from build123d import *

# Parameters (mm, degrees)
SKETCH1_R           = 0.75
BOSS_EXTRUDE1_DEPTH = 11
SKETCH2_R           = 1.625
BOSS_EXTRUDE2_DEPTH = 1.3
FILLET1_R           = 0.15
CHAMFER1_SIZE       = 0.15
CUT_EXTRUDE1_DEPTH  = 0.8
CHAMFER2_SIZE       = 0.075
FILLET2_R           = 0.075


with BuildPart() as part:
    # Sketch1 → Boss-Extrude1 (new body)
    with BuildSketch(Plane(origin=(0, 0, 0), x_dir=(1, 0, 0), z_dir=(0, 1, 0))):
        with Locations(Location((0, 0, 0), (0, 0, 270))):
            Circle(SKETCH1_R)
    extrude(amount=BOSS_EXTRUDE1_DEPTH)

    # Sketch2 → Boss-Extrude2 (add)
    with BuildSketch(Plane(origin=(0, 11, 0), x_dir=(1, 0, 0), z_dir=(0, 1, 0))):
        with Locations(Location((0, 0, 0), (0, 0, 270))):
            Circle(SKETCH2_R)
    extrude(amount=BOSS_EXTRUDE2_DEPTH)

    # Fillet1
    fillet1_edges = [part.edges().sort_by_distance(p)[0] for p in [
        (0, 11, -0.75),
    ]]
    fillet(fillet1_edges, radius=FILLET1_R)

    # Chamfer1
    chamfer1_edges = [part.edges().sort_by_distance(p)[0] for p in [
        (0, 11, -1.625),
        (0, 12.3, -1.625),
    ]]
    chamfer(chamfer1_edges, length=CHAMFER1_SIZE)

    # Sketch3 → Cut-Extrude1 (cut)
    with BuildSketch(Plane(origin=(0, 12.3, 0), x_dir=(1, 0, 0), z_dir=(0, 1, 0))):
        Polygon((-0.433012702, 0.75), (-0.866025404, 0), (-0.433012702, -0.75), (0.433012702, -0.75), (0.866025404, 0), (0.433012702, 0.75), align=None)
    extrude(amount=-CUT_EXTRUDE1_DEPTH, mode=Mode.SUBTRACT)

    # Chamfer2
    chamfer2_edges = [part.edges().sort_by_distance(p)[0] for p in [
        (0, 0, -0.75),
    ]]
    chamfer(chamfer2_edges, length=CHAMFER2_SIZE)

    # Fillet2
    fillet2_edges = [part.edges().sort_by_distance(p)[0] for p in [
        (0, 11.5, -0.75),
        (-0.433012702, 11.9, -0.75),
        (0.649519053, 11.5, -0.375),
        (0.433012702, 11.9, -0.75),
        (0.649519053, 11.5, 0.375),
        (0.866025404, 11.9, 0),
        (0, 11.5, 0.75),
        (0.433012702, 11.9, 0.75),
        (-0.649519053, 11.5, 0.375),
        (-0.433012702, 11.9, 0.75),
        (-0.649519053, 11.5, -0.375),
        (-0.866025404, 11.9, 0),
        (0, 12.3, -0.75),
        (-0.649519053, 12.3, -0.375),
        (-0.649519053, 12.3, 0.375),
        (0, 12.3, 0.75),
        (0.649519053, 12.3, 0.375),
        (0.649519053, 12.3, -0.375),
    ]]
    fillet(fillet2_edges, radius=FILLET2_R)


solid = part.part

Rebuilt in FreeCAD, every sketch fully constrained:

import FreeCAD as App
import Part
import Sketcher
from FreeCAD import Vector
Q = App.Units.Quantity


def edges_at(feature, points):
    """Names of the edges that pass closest to the given points."""
    edges = feature.Shape.Edges
    near = lambda p: min(range(len(edges)), key=lambda i: edges[i].distToShape(Part.Vertex(*p))[0])
    return sorted({f"Edge{near(p) + 1}" for p in points})


def add_polygon(sketch, points):
    """Adds a closed chain of lines whose ends are joined by coincident constraints."""
    first, n = sketch.GeometryCount, len(points)
    for a, b in zip(points, points[1:] + points[:1]):
        sketch.addGeometry(Part.LineSegment(App.Vector(*a, 0), App.Vector(*b, 0)), False)
    for i in range(n):
        sketch.addConstraint(Sketcher.Constraint("Coincident", first + i, 2, first + (i + 1) % n, 1))

doc = App.newDocument("Part")
body = doc.addObject("PartDesign::Body", "Body")

# Sketch on XZ plane
sketch1 = body.newObject("Sketcher::SketchObject", "Sketch")
sketch1.AttachmentSupport = (doc.getObject("XZ_Plane"), [""])
sketch1.MapMode = "FlatFace"
sketch1.addGeometry(Part.Circle(Vector(0, 0, 0), Vector(0, 0, 1), 0.75), False)
sketch1.addConstraint([
    Sketcher.Constraint("Coincident", 0, 3, -1, 1),
    Sketcher.Constraint("Diameter", 0, 1.5),
])
pad1 = body.newObject("PartDesign::Pad", "Pad")
pad1.Profile = sketch1
pad1.Length = 11
pad1.Reversed = True

# Sketch on XZ plane
sketch2 = body.newObject("Sketcher::SketchObject", "Sketch001")
sketch2.AttachmentSupport = (doc.getObject("XZ_Plane"), [""])
sketch2.MapMode = "FlatFace"
sketch2.AttachmentOffset = App.Placement(Vector(0, 0, -11), App.Rotation())
sketch2.addGeometry(Part.Circle(Vector(0, 0, 0), Vector(0, 0, 1), 1.625), False)
sketch2.addConstraint([
    Sketcher.Constraint("Coincident", 0, 3, -1, 1),
    Sketcher.Constraint("Diameter", 0, 3.25),
])
pad2 = body.newObject("PartDesign::Pad", "Pad001")
pad2.Profile = sketch2
pad2.Length = 1.3
pad2.Reversed = True
doc.recompute()

fillet = body.newObject("PartDesign::Fillet", "Fillet")
fillet.Base = (pad2, edges_at(pad2, [(0, 11, -0.75)]))
fillet.Radius = 0.15
doc.recompute()

chamfer = body.newObject("PartDesign::Chamfer", "Chamfer")
chamfer.Base = (fillet, edges_at(fillet, [(0, 11, -1.625), (0, 12.3, -1.625)]))
chamfer.Size = 0.15

# Sketch on XZ plane
sketch3 = body.newObject("Sketcher::SketchObject", "Sketch002")
sketch3.AttachmentSupport = (doc.getObject("XZ_Plane"), [""])
sketch3.MapMode = "FlatFace"
sketch3.AttachmentOffset = App.Placement(Vector(0, 0, -12.3), App.Rotation())
add_polygon(sketch3, [(-0.433013, -0.75), (-0.866025, 0), (-0.433013, 0.75), (0.433013, 0.75), (0.866025, 0), (0.433013, -0.75)])  # lines 0-5
sketch3.addConstraint([
    Sketcher.Constraint("Horizontal", 2),
    Sketcher.Constraint("Horizontal", 5),
    Sketcher.Constraint("Symmetric", 0, 2, 3, 2, -1, 1),
    Sketcher.Constraint("Symmetric", 1, 2, 4, 2, -1, 1),
    Sketcher.Constraint("PointOnObject", 0, 2, -1),
    Sketcher.Constraint("Parallel", 0, 3),
    Sketcher.Constraint("Vertical", 2, 2, 4, 2),
    Sketcher.Constraint("Angle", 0, Q("120 deg")),
    Sketcher.Constraint("DistanceY", 4, 2, 2, 2, 1.5),
    Sketcher.Constraint("DistanceX", 2, 1, 2, 2, 0.866025),
])
pocket1 = body.newObject("PartDesign::Pocket", "Pocket")
pocket1.Profile = sketch3
pocket1.Length = 0.8
pocket1.Reversed = True
doc.recompute()

chamfer2 = body.newObject("PartDesign::Chamfer", "Chamfer001")
chamfer2.Base = (pocket1, edges_at(pocket1, [(0, 0, -0.75)]))
chamfer2.Size = 0.075
doc.recompute()

fillet2 = body.newObject("PartDesign::Fillet", "Fillet001")
fillet2.Base = (chamfer2, edges_at(chamfer2, [
    (0, 11.5, -0.75),
    (-0.433, 11.9, -0.75),
    (0.65, 11.5, -0.375),
    (0.433, 11.9, -0.75),
    (0.65, 11.5, 0.375),
    (0.866, 11.9, 0),
    (0, 11.5, 0.75),
    (0.433, 11.9, 0.75),
    (-0.65, 11.5, 0.375),
    (-0.433, 11.9, 0.75),
    (-0.65, 11.5, -0.375),
    (-0.866, 11.9, 0),
    (0, 12.3, -0.75),
    (-0.65, 12.3, -0.375),
    (-0.65, 12.3, 0.375),
    (0, 12.3, 0.75),
    (0.65, 12.3, 0.375),
    (0.65, 12.3, -0.375),
]))
fillet2.Radius = 0.075

doc.recompute()
